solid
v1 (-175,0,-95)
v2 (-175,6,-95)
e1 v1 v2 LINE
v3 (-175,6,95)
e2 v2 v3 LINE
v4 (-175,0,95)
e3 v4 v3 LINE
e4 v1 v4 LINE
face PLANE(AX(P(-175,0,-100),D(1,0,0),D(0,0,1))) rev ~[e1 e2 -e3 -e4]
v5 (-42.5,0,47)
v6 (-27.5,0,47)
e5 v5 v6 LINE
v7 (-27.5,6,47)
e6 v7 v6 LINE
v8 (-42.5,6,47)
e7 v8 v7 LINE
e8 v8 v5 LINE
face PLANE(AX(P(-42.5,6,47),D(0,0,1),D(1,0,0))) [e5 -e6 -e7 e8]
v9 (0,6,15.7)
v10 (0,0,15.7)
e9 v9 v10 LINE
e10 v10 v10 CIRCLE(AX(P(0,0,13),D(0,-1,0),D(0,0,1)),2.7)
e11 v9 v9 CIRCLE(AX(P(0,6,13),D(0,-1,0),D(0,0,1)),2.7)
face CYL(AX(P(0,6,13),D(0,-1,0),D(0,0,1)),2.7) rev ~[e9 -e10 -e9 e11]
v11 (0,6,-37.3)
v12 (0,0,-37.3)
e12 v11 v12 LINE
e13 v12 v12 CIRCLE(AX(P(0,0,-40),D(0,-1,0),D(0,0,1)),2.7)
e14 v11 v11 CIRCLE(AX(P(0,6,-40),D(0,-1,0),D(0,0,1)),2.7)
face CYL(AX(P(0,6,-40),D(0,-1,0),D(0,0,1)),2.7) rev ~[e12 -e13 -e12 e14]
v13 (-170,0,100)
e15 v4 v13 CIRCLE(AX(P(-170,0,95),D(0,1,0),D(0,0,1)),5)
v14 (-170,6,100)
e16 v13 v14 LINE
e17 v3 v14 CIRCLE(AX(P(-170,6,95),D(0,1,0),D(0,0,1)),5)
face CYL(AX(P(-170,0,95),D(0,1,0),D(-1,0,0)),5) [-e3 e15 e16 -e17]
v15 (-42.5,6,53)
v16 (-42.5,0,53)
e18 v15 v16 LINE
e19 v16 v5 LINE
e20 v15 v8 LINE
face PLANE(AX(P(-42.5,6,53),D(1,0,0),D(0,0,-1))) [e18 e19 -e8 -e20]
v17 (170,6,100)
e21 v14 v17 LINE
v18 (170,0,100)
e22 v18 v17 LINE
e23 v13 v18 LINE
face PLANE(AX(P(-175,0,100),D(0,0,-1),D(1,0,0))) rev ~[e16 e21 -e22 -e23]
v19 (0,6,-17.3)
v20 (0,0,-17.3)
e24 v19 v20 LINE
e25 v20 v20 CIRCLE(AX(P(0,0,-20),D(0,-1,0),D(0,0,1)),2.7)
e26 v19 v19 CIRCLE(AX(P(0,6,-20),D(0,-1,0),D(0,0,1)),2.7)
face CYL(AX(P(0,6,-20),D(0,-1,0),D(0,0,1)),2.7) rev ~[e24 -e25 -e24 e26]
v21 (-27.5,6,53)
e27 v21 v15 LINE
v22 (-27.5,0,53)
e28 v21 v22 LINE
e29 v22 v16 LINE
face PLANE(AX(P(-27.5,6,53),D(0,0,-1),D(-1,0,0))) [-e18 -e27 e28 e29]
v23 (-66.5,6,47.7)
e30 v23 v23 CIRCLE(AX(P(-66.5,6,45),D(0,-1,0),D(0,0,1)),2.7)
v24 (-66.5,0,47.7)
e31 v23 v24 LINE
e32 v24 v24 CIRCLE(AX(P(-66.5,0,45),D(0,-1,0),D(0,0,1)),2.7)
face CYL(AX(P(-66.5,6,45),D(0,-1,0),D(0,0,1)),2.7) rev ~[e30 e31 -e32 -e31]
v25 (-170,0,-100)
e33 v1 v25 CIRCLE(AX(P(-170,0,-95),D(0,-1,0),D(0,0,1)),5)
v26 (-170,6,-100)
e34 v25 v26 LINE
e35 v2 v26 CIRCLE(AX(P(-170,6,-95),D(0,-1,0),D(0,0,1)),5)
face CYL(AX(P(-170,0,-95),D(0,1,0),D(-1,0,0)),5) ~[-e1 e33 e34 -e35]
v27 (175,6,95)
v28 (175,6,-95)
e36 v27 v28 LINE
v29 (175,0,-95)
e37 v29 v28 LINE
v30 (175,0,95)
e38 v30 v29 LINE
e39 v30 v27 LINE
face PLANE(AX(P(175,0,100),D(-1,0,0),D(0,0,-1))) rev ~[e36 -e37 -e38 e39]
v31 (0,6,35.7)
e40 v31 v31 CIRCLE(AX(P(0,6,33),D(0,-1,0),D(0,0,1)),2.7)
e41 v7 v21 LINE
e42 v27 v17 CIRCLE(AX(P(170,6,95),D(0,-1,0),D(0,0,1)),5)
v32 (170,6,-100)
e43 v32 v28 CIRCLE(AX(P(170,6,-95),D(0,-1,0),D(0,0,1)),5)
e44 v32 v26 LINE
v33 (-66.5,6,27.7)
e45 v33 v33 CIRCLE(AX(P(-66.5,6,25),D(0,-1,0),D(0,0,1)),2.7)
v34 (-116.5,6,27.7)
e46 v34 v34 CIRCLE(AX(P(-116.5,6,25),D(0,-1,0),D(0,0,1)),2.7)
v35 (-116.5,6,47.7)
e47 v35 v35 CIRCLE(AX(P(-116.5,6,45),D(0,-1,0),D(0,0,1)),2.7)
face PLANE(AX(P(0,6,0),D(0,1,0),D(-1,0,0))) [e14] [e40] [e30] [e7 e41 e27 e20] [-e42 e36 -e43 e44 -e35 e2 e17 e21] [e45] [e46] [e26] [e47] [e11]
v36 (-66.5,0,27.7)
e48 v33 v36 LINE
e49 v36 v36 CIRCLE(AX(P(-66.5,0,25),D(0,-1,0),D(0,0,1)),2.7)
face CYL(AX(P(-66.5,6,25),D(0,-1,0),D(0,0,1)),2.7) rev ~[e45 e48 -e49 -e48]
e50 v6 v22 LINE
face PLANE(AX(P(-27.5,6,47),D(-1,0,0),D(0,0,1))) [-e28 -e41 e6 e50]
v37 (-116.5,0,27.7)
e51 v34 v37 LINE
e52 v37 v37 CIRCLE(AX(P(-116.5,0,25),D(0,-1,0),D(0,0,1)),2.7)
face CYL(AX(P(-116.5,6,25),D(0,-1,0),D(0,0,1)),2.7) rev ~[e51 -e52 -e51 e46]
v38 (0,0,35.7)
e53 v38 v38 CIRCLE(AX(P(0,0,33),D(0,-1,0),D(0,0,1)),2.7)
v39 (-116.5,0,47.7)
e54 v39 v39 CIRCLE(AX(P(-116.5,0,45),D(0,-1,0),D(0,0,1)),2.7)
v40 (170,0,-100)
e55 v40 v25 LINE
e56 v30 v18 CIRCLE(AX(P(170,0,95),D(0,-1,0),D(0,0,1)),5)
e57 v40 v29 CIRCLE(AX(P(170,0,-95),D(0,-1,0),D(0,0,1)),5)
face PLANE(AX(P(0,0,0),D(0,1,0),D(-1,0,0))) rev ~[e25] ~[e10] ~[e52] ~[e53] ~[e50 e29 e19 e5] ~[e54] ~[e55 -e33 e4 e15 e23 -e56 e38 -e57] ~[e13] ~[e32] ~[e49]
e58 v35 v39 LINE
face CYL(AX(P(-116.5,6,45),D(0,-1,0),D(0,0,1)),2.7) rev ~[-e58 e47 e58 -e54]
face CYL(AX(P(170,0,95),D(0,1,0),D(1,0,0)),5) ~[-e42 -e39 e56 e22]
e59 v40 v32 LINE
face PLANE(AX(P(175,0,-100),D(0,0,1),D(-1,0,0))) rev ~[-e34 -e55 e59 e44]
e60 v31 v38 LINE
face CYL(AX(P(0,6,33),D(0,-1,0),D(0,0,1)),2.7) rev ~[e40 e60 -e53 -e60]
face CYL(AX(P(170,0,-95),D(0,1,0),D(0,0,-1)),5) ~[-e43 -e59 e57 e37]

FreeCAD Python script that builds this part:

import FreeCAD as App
import Part
import Sketcher
Q = App.Units.Quantity


def edges_at(feature, points):
    """Names of the edges that pass closest to the given points."""
    edges = feature.Shape.Edges
    near = lambda p: min(range(len(edges)), key=lambda i: edges[i].distToShape(Part.Vertex(*p))[0])
    return sorted({f"Edge{near(p) + 1}" for p in points})

doc = App.newDocument("Part")
body = doc.addObject("PartDesign::Body", "Body")

sketch1 = body.newObject("Sketcher::SketchObject", "Sketch")
sketch1.AttachmentSupport = (doc.getObject("XZ_Plane"), [""])
sketch1.MapMode = "FlatFace"
sketch1.addGeometry([
    Part.LineSegment(App.Vector(-175, -100, 0), App.Vector(-175, 100, 0)),
    Part.LineSegment(App.Vector(-175, 100, 0), App.Vector(175, 100, 0)),
    Part.LineSegment(App.Vector(175, 100, 0), App.Vector(175, -100, 0)),
    Part.LineSegment(App.Vector(175, -100, 0), App.Vector(-175, -100, 0)),
], False)
sketch1.addConstraint([
    Sketcher.Constraint("Coincident", 0, 2, 1, 1),
    Sketcher.Constraint("Coincident", 1, 2, 2, 1),
    Sketcher.Constraint("Coincident", 2, 2, 3, 1),
    Sketcher.Constraint("Coincident", 3, 2, 0, 1),
    Sketcher.Constraint("Vertical", 0),
    Sketcher.Constraint("Horizontal", 1),
    Sketcher.Constraint("Vertical", 2),
    Sketcher.Constraint("Horizontal", 3),
    Sketcher.Constraint("Symmetric", 0, 2, 2, 2, -1, 1),
    Sketcher.Constraint("DistanceX", 1, 1, 1, 2, Q("350 mm")),
    Sketcher.Constraint("DistanceY", 0, 1, 0, 2, Q("200 mm")),
])
pad1 = body.newObject("PartDesign::Pad", "Pad")
pad1.Profile = sketch1
pad1.Length = 6
pad1.Reversed = True
doc.recompute()

fillet = body.newObject("PartDesign::Fillet", "Fillet")
fillet.Base = (pad1, edges_at(pad1, [
    (175, 3, 100),
    (175, 3, -100),
    (-175, 3, 100),
    (-175, 3, -100),
]))
fillet.Radius = 5

sketch2 = body.newObject("Sketcher::SketchObject", "Sketch001")
sketch2.AttachmentSupport = (doc.getObject("XZ_Plane"), [""])
sketch2.MapMode = "FlatFace"
sketch2.AttachmentOffset = App.Placement(App.Vector(0, 0, -6), App.Rotation())
sketch2.addGeometry([
    Part.Circle(App.Vector(0, -40, 0), App.Vector(0, 0, 1), 2.7),
    Part.Circle(App.Vector(0, 33, 0), App.Vector(0, 0, 1), 2.7),
    Part.Circle(App.Vector(0, 13, 0), App.Vector(0, 0, 1), 2.7),
    Part.Circle(App.Vector(0, -20, 0), App.Vector(0, 0, 1), 2.7),
    Part.Circle(App.Vector(-116.5, 45, 0), App.Vector(0, 0, 1), 2.7),
    Part.Circle(App.Vector(-116.5, 25, 0), App.Vector(0, 0, 1), 2.7),
    Part.Circle(App.Vector(-66.5, 25, 0), App.Vector(0, 0, 1), 2.7),
    Part.Circle(App.Vector(-66.5, 45, 0), App.Vector(0, 0, 1), 2.7),
], False)
sketch2.addConstraint([
    Sketcher.Constraint("Equal", 0, 1),
    Sketcher.Constraint("Equal", 1, 2),
    Sketcher.Constraint("Equal", 2, 3),
    Sketcher.Constraint("Equal", 3, 4),
    Sketcher.Constraint("Equal", 4, 5),
    Sketcher.Constraint("Equal", 5, 6),
    Sketcher.Constraint("Equal", 6, 7),
    Sketcher.Constraint("PointOnObject", 0, 3, -2),
    Sketcher.Constraint("PointOnObject", 1, 3, -2),
    Sketcher.Constraint("PointOnObject", 2, 3, -2),
    Sketcher.Constraint("PointOnObject", 3, 3, -2),
    Sketcher.Constraint("Horizontal", 5, 3, 6, 3),
    Sketcher.Constraint("Horizontal", 4, 3, 7, 3),
    Sketcher.Constraint("Vertical", 4, 3, 5, 3),
    Sketcher.Constraint("Vertical", 6, 3, 7, 3),
    Sketcher.Constraint("Diameter", 0, Q("5.4 mm")),
    Sketcher.Constraint("DistanceY", 0, 3, -1, 1, Q("40 mm")),
    Sketcher.Constraint("DistanceY", -1, 1, 1, 3, Q("33 mm")),
    Sketcher.Constraint("DistanceY", -1, 1, 2, 3, Q("13 mm")),
    Sketcher.Constraint("DistanceY", 3, 3, -1, 1, Q("20 mm")),
    Sketcher.Constraint("DistanceY", -1, 1, 4, 3, Q("45 mm")),
    Sketcher.Constraint("DistanceY", -1, 1, 5, 3, Q("25 mm")),
    Sketcher.Constraint("DistanceX", 5, 3, 6, 3, Q("50 mm")),
    Sketcher.Constraint("DistanceX", 4, 3, -1, 1, Q("116.5 mm")),
])
doc.recompute()
hole = body.newObject("PartDesign::Hole", "Hole")
hole.Profile = sketch2
hole.ThreadType = "None"
hole.Diameter = 5.4
hole.DepthType = "ThroughAll"
hole.Reversed = True

sketch3 = body.newObject("Sketcher::SketchObject", "Sketch002")
sketch3.AttachmentSupport = (doc.getObject("XZ_Plane"), [""])
sketch3.MapMode = "FlatFace"
sketch3.AttachmentOffset = App.Placement(App.Vector(0, 0, -6), App.Rotation())
sketch3.addGeometry([
    Part.LineSegment(App.Vector(-28, 47, 0), App.Vector(-42, 47, 0)),
    Part.LineSegment(App.Vector(-42, 47, 0), App.Vector(-42, 53, 0)),
    Part.LineSegment(App.Vector(-42, 53, 0), App.Vector(-28, 53, 0)),
    Part.LineSegment(App.Vector(-28, 53, 0), App.Vector(-28, 47, 0)),
], False)
sketch3.addConstraint([
    Sketcher.Constraint("Coincident", 0, 2, 1, 1),
    Sketcher.Constraint("Coincident", 1, 2, 2, 1),
    Sketcher.Constraint("Coincident", 2, 2, 3, 1),
    Sketcher.Constraint("Coincident", 3, 2, 0, 1),
    Sketcher.Constraint("Horizontal", 0),
    Sketcher.Constraint("Vertical", 1),
    Sketcher.Constraint("Horizontal", 2),
    Sketcher.Constraint("Vertical", 3),
    Sketcher.Constraint("DistanceX", 0, 2, 0, 1, Q("15 mm")),
    Sketcher.Constraint("DistanceY", 1, 1, 1, 2, Q("6 mm")),
    Sketcher.Constraint("DistanceY", -1, 1, 0, 2, Q("47 mm")),
    Sketcher.Constraint("DistanceX", 0, 2, -1, 1, Q("42.5 mm")),
])
pocket1 = body.newObject("PartDesign::Pocket", "Pocket")
pocket1.Profile = sketch3
pocket1.Type = "ThroughAll"
pocket1.Reversed = True

doc.recompute()
